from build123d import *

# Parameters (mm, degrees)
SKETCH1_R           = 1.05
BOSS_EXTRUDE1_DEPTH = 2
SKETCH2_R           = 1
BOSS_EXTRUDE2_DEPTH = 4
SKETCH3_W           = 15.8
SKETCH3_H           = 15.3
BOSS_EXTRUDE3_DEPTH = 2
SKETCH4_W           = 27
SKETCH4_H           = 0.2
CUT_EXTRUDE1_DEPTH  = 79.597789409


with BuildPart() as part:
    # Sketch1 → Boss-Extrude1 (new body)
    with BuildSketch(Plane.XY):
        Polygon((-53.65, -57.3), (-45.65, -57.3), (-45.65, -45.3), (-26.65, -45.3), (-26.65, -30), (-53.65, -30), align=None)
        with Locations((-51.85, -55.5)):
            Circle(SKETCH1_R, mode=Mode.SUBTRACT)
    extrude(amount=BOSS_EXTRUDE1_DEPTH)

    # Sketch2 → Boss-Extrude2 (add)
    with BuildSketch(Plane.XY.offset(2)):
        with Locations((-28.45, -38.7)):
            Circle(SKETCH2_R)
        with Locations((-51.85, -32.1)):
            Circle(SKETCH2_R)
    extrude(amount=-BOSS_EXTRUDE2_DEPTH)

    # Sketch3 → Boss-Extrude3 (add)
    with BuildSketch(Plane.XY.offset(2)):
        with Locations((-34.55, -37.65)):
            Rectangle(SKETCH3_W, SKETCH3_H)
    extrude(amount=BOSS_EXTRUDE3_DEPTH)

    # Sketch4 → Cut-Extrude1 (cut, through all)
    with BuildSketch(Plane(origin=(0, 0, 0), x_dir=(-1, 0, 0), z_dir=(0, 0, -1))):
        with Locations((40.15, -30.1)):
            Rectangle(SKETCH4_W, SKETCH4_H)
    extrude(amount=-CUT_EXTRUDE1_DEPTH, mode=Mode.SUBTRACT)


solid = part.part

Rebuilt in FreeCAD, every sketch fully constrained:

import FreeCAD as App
import Part
import Sketcher

V = App.Vector
Q = App.Units.Quantity


def add_polygon(sketch, points):
    """Adds a closed chain of lines whose ends are joined by coincident constraints."""
    first, n = sketch.GeometryCount, len(points)
    for a, b in zip(points, points[1:] + points[:1]):
        sketch.addGeometry(Part.LineSegment(App.Vector(*a, 0), App.Vector(*b, 0)), False)
    for i in range(n):
        sketch.addConstraint(Sketcher.Constraint("Coincident", first + i, 2, first + (i + 1) % n, 1))

doc = App.newDocument("Part")
body = doc.addObject("PartDesign::Body", "Body")

# Sketch on XY plane
sketch1 = body.newObject("Sketcher::SketchObject", "Sketch")
sketch1.AttachmentSupport = (doc.getObject("XY_Plane"), [""])
sketch1.MapMode = "FlatFace"
add_polygon(sketch1, [(-53.6, -57.3), (-45.6, -57.3), (-45.6, -45.3), (-26.6, -45.3), (-26.6, -30), (-53.6, -30)])  # lines 0-5
sketch1.addGeometry(Part.Circle(V(-51.9, -55.5, 0), V(0, 0, 1), 1.1), False)  # 6
sketch1.addConstraint([
    Sketcher.Constraint("Horizontal", 0),
    Sketcher.Constraint("Vertical", 1),
    Sketcher.Constraint("Horizontal", 2),
    Sketcher.Constraint("Vertical", 3),
    Sketcher.Constraint("Horizontal", 4),
    Sketcher.Constraint("Vertical", 5),
    Sketcher.Constraint("Diameter", 6, Q("2.1 mm")),
    Sketcher.Constraint("DistanceX", 0, 1, 0, 2, Q("8 mm")),
    Sketcher.Constraint("DistanceX", 2, 1, 2, 2, Q("19 mm")),
    Sketcher.Constraint("DistanceY", 1, 1, 1, 2, Q("12 mm")),
    Sketcher.Constraint("DistanceY", 3, 1, 3, 2, Q("15.3 mm")),
    Sketcher.Constraint("DistanceY", 3, 2, -1, 1, Q("30 mm")),
    Sketcher.Constraint("DistanceY", 6, 3, -1, 1, Q("55.5 mm")),
    Sketcher.Constraint("DistanceX", 6, 3, 0, 2, Q("6.2 mm")),
    Sketcher.Constraint("DistanceX", 6, 3, -1, 1, Q("51.85 mm")),
])
pad1 = body.newObject("PartDesign::Pad", "Pad")
pad1.Profile = sketch1
pad1.Length = 2

# Sketch on XY plane
sketch2 = body.newObject("Sketcher::SketchObject", "Sketch001")
sketch2.AttachmentSupport = (doc.getObject("XY_Plane"), [""])
sketch2.MapMode = "FlatFace"
sketch2.AttachmentOffset = App.Placement(V(0, 0, 2), App.Rotation())
sketch2.addGeometry([
    Part.Circle(V(-28.4, -38.7, 0), V(0, 0, 1), 1),
    Part.Circle(V(-51.9, -32.1, 0), V(0, 0, 1), 1),
], False)
sketch2.addConstraint([
    Sketcher.Constraint("Equal", 0, 1),
    Sketcher.Constraint("Diameter", 0, Q("2 mm")),
    Sketcher.Constraint("DistanceY", 0, 3, -1, 1, Q("38.7 mm")),
    Sketcher.Constraint("DistanceY", 1, 3, -1, 1, Q("32.1 mm")),
    Sketcher.Constraint("DistanceX", 1, 3, 0, 3, Q("23.4 mm")),
    Sketcher.Constraint("DistanceX", 0, 3, -1, 1, Q("28.45 mm")),
])
pad2 = body.newObject("PartDesign::Pad", "Pad001")
pad2.Profile = sketch2
pad2.Length = 4
pad2.Reversed = True

# Sketch on XY plane
sketch3 = body.newObject("Sketcher::SketchObject", "Sketch002")
sketch3.AttachmentSupport = (doc.getObject("XY_Plane"), [""])
sketch3.MapMode = "FlatFace"
sketch3.AttachmentOffset = App.Placement(V(0, 0, 2), App.Rotation())
add_polygon(sketch3, [(-42, -30), (-42, -45), (-27, -45), (-27, -30)])  # lines 0-3
sketch3.addConstraint([
    Sketcher.Constraint("Vertical", 0),
    Sketcher.Constraint("Horizontal", 1),
    Sketcher.Constraint("Vertical", 2),
    Sketcher.Constraint("Horizontal", 3),
    Sketcher.Constraint("DistanceX", 1, 1, 1, 2, Q("15.8 mm")),
    Sketcher.Constraint("DistanceY", 0, 2, 0, 1, Q("15.3 mm")),
    Sketcher.Constraint("DistanceY", 2, 2, -1, 1, Q("30 mm")),
    Sketcher.Constraint("DistanceX", 0, 2, -1, 1, Q("42.45 mm")),
])
pad3 = body.newObject("PartDesign::Pad", "Pad002")
pad3.Profile = sketch3
pad3.Length = 2

# Sketch on XY plane
sketch4 = body.newObject("Sketcher::SketchObject", "Sketch003")
sketch4.AttachmentSupport = (doc.getObject("XY_Plane"), [""])
sketch4.MapMode = "FlatFace"
add_polygon(sketch4, [(-26.65, -30), (-26.65, -30.2), (-53.65, -30.2), (-53.65, -30)])  # lines 0-3
sketch4.addConstraint([
    Sketcher.Constraint("Vertical", 0),
    Sketcher.Constraint("Horizontal", 1),
    Sketcher.Constraint("Vertical", 2),
    Sketcher.Constraint("Horizontal", 3),
    Sketcher.Constraint("DistanceX", 1, 2, 1, 1, Q("27 mm")),
    Sketcher.Constraint("DistanceY", 0, 2, 0, 1, Q("0.2 mm")),
    Sketcher.Constraint("DistanceY", 2, 2, -1, 1, Q("30 mm")),
    Sketcher.Constraint("DistanceX", 0, 2, -1, 1, Q("26.65 mm")),
])
pocket1 = body.newObject("PartDesign::Pocket", "Pocket")
pocket1.Profile = sketch4
pocket1.Type = "ThroughAll"
pocket1.Reversed = True

doc.recompute()
